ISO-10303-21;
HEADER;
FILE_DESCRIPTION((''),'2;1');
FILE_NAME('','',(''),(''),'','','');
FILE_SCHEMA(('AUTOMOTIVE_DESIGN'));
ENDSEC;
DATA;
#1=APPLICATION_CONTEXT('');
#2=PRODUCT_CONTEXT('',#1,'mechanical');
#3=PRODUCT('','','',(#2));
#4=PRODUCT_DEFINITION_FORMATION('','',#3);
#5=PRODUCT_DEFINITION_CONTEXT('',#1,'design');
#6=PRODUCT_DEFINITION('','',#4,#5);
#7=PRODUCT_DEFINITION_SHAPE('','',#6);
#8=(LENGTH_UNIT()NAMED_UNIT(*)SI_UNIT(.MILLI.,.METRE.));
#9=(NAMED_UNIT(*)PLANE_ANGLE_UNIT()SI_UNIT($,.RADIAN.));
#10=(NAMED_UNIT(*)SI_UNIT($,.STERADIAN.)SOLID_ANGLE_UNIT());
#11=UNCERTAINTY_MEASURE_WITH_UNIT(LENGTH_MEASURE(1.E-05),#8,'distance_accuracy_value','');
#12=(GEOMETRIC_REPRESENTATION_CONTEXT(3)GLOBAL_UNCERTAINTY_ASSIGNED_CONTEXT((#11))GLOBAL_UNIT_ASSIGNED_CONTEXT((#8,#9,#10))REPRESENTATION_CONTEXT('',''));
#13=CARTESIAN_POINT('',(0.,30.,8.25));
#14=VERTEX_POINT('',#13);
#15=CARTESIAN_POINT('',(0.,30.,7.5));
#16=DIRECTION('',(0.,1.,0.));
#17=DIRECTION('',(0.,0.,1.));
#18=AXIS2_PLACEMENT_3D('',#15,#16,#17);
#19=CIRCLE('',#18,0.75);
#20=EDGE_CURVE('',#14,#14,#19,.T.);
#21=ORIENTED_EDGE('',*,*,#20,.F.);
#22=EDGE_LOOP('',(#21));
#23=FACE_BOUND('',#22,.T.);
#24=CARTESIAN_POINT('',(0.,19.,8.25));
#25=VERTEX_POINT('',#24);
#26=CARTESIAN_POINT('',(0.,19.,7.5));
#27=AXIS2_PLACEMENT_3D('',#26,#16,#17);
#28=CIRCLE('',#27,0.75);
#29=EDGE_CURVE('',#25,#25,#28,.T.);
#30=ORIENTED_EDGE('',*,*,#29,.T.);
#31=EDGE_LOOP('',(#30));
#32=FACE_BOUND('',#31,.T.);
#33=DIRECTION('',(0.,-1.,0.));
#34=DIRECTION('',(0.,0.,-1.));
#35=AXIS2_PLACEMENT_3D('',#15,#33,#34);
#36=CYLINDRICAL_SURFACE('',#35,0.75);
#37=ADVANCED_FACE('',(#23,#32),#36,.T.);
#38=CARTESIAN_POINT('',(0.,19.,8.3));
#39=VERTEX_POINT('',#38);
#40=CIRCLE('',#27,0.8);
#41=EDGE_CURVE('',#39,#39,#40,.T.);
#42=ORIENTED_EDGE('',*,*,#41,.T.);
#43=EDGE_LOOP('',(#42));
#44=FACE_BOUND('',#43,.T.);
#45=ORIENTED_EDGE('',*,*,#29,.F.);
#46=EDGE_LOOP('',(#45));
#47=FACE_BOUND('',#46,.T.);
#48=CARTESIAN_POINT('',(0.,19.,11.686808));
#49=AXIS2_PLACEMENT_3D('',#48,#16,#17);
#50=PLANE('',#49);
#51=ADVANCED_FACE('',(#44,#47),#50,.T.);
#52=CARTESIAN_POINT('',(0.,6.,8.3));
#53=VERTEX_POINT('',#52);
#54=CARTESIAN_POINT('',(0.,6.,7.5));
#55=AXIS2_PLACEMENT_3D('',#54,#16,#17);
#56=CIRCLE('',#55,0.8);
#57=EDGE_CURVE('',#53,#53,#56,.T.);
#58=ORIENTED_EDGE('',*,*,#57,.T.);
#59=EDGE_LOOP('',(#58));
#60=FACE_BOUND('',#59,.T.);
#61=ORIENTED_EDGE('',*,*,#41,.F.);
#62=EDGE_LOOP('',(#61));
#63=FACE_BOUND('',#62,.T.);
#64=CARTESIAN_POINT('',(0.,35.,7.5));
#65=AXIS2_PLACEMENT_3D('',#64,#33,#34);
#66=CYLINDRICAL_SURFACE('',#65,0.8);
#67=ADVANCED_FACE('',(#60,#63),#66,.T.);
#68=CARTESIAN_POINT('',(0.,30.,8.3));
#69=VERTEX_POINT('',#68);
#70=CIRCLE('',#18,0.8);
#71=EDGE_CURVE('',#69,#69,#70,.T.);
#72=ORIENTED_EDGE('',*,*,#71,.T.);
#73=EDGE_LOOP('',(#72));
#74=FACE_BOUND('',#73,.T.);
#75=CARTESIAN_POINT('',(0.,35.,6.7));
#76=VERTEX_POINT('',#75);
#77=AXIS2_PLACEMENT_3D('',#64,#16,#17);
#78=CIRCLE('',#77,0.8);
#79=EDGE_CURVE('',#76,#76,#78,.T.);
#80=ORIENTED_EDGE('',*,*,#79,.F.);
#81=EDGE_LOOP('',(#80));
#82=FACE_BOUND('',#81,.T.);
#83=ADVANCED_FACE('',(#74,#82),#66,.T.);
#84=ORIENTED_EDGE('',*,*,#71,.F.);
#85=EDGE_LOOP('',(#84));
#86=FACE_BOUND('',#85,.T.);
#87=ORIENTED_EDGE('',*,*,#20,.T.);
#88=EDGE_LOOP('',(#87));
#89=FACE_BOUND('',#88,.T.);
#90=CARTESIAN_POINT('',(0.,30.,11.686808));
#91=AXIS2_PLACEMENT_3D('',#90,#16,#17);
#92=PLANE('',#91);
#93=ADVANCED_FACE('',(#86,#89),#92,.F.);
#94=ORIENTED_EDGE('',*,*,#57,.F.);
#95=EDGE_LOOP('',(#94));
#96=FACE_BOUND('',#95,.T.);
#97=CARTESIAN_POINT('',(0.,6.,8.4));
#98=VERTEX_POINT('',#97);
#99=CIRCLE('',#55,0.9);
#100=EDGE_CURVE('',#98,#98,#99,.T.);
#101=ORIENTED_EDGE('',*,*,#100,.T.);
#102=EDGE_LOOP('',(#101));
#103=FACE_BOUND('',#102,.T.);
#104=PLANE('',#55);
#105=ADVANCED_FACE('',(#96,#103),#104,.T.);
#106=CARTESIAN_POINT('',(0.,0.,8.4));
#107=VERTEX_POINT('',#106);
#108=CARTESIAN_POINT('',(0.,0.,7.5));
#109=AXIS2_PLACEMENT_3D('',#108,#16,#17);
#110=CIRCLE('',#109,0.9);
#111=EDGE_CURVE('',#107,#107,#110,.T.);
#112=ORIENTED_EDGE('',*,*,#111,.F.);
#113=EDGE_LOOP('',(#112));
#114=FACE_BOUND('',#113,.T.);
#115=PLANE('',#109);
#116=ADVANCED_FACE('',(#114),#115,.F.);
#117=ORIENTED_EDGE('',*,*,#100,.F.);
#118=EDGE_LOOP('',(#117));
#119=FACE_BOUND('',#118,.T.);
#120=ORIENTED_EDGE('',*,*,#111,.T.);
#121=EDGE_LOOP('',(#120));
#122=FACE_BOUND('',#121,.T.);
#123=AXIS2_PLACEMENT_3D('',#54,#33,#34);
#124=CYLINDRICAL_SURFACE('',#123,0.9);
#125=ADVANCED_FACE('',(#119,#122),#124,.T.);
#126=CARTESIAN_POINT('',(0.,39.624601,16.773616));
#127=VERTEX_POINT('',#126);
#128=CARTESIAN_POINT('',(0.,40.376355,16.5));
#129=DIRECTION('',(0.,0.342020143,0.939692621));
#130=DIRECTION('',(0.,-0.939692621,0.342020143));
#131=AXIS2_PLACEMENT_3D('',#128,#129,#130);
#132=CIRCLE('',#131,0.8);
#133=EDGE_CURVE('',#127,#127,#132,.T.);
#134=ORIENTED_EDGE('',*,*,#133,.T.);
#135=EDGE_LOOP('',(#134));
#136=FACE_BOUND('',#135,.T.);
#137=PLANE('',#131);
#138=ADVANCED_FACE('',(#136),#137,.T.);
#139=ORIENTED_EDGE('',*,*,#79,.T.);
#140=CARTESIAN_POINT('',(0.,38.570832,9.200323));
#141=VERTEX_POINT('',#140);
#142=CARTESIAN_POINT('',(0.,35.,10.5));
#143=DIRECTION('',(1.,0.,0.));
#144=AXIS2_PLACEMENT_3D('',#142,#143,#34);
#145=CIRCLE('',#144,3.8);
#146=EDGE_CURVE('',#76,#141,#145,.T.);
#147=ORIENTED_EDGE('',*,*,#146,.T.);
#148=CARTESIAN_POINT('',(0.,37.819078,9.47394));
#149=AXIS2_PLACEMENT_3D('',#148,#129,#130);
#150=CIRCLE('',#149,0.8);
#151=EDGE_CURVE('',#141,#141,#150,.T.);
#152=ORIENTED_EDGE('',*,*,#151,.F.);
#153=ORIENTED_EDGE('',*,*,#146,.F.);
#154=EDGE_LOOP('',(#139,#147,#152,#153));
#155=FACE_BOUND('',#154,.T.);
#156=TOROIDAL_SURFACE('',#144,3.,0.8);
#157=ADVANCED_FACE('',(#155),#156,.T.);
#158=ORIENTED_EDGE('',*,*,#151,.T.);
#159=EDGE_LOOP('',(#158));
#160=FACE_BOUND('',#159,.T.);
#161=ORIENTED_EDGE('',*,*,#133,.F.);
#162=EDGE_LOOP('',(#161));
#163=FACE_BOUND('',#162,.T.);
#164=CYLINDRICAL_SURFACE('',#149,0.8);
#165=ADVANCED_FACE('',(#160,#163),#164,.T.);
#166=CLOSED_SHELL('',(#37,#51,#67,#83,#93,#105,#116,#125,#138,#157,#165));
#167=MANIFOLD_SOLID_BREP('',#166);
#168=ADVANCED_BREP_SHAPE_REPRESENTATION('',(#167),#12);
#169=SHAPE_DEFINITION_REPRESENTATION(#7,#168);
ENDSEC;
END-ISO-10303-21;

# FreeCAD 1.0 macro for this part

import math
import FreeCAD as App
import Part
import Sketcher
Q = App.Units.Quantity

doc = App.newDocument("Part")
body = doc.addObject("PartDesign::Body", "Body")

sketch1 = body.newObject("Sketcher::SketchObject", "Sketch")
sketch1.AttachmentSupport = (doc.getObject("XZ_Plane"), [""])
sketch1.MapMode = "FlatFace"
sketch1.addGeometry(Part.Circle(App.Vector(0, 7.5, 0), App.Vector(0, 0, 1), 0.8), False)
sketch1.addConstraint([
    Sketcher.Constraint("PointOnObject", 0, 3, -2),
    Sketcher.Constraint("Diameter", 0, 1.6),
    Sketcher.Constraint("DistanceY", -1, 1, 0, 3, 7.5),
])

sketch2 = body.newObject("Sketcher::SketchObject", "Sketch001")
sketch2.AttachmentSupport = (doc.getObject("YZ_Plane"), [""])
sketch2.MapMode = "FlatFace"
sketch2.addGeometry([
    Part.LineSegment(App.Vector(0, 7.5, 0), App.Vector(35, 7.5, 0)),
    Part.ArcOfCircle(Part.Circle(App.Vector(35, 10.5, 0), App.Vector(0, 0, 1), 3), math.radians(-90), math.radians(-20)),
    Part.LineSegment(App.Vector(37.8, 9.5, 0), App.Vector(40.4, 16.5, 0)),
], False)
sketch2.addConstraint([
    Sketcher.Constraint("Tangent", 0, 2, 1, 1),
    Sketcher.Constraint("Tangent", 1, 2, 2, 1),
    Sketcher.Constraint("Horizontal", 0),
    Sketcher.Constraint("PointOnObject", 0, 1, -2),
    Sketcher.Constraint("Radius", 1, 3.0),
    Sketcher.Constraint("DistanceX", 0, 1, 0, 2, 35.0),
    Sketcher.Constraint("Angle", 2, Q("70 deg")),
    Sketcher.Constraint("DistanceY", 1, 3, 2, 2, 6.0),
    Sketcher.Constraint("DistanceY", -1, 1, 1, 3, 10.5),
])
doc.recompute()

additivepipe = body.newObject("PartDesign::AdditivePipe", "AdditivePipe")
additivepipe.Profile = sketch1
additivepipe.Spine = (sketch2, ["Edge1", "Edge2", "Edge3"])

sketch3 = body.newObject("Sketcher::SketchObject", "Sketch002")
sketch3.AttachmentSupport = (doc.getObject("XZ_Plane"), [""])
sketch3.MapMode = "FlatFace"
sketch3.addGeometry(Part.Circle(App.Vector(0, 7.5, 0), App.Vector(0, 0, 1), 0.9), False)
sketch3.addConstraint([
    Sketcher.Constraint("PointOnObject", 0, 3, -2),
    Sketcher.Constraint("Diameter", 0, 1.8),
    Sketcher.Constraint("DistanceY", -1, 1, 0, 3, 7.5),
])
pad1 = body.newObject("PartDesign::Pad", "Pad")
pad1.Profile = sketch3
pad1.Length = 6
pad1.Reversed = True

sketch4 = body.newObject("Sketcher::SketchObject", "Sketch003")
sketch4.AttachmentSupport = (doc.getObject("XZ_Plane"), [""])
sketch4.MapMode = "FlatFace"
sketch4.AttachmentOffset = App.Placement(App.Vector(0, 0, -19), App.Rotation())
sketch4.addGeometry([
    Part.LineSegment(App.Vector(6.1, 22, 0), App.Vector(6.1, 1.4, 0)),
    Part.LineSegment(App.Vector(6.1, 1.4, 0), App.Vector(-6.1, 1.4, 0)),
    Part.LineSegment(App.Vector(-6.1, 1.4, 0), App.Vector(-6.1, 22, 0)),
    Part.LineSegment(App.Vector(-6.1, 22, 0), App.Vector(6.1, 22, 0)),
    Part.Circle(App.Vector(0, 7.5, 0), App.Vector(0, 0, 1), 0.8),
], False)
sketch4.addConstraint([
    Sketcher.Constraint("Coincident", 0, 2, 1, 1),
    Sketcher.Constraint("Coincident", 1, 2, 2, 1),
    Sketcher.Constraint("Coincident", 2, 2, 3, 1),
    Sketcher.Constraint("Coincident", 3, 2, 0, 1),
    Sketcher.Constraint("Vertical", 0),
    Sketcher.Constraint("Horizontal", 1),
    Sketcher.Constraint("Vertical", 2),
    Sketcher.Constraint("Horizontal", 3),
    Sketcher.Constraint("PointOnObject", 4, 3, -2),
    Sketcher.Constraint("Diameter", 4, 1.5),
    Sketcher.Constraint("DistanceY", -1, 1, 4, 3, 7.5),
    Sketcher.Constraint("DistanceX", 1, 2, 1, 1, 12.282),
    Sketcher.Constraint("DistanceY", 0, 2, 0, 1, 20.656),
    Sketcher.Constraint("DistanceX", -1, 1, 0, 2, 6.141),
    Sketcher.Constraint("DistanceY", -1, 1, 0, 2, 1.359),
])
pocket1 = body.newObject("PartDesign::Pocket", "Pocket")
pocket1.Profile = sketch4
pocket1.Length = 11

doc.recompute()
